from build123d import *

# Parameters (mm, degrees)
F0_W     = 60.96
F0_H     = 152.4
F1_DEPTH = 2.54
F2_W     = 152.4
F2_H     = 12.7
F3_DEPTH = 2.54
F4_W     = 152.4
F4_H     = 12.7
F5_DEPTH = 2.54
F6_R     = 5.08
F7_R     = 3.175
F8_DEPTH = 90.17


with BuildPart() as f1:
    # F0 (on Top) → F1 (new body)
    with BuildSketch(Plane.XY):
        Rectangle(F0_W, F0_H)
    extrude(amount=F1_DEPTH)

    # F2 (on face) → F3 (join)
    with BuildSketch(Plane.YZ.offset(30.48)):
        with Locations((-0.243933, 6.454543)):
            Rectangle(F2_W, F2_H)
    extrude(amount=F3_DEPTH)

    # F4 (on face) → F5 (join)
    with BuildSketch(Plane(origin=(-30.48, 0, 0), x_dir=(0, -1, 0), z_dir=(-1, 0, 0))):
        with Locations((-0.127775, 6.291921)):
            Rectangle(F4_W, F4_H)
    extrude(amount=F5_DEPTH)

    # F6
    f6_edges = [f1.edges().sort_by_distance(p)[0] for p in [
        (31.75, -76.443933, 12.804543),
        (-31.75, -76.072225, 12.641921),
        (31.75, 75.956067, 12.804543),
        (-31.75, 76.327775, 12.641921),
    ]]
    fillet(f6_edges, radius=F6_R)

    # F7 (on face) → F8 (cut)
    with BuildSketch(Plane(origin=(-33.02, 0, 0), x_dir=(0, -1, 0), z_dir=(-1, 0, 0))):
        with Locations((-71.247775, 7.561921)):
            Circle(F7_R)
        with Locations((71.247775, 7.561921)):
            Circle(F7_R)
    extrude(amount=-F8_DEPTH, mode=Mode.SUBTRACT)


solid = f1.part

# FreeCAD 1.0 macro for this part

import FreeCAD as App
import Part
import Sketcher
Q = App.Units.Quantity


def edges_at(feature, points):
    """Names of the edges that pass closest to the given points."""
    edges = feature.Shape.Edges
    near = lambda p: min(range(len(edges)), key=lambda i: edges[i].distToShape(Part.Vertex(*p))[0])
    return sorted({f"Edge{near(p) + 1}" for p in points})

doc = App.newDocument("Part")
body = doc.addObject("PartDesign::Body", "Body")

# Sketch on XY plane
sketch1 = doc.addObject("Sketcher::SketchObject", "Sketch")
body.addObject(sketch1)
sketch1.AttachmentSupport = (doc.XY_Plane, [""])
sketch1.MapMode = "FlatFace"
sketch1.addGeometry([
    Part.LineSegment(App.Vector(-30, 76, 0), App.Vector(-30, -76, 0)),
    Part.LineSegment(App.Vector(-30, -76, 0), App.Vector(30, -76, 0)),
    Part.LineSegment(App.Vector(30, -76, 0), App.Vector(30, 76, 0)),
    Part.LineSegment(App.Vector(30, 76, 0), App.Vector(-30, 76, 0)),
], False)
sketch1.addConstraint([
    Sketcher.Constraint("Coincident", 0, 2, 1, 1),
    Sketcher.Constraint("Coincident", 1, 2, 2, 1),
    Sketcher.Constraint("Coincident", 2, 2, 3, 1),
    Sketcher.Constraint("Coincident", 3, 2, 0, 1),
    Sketcher.Constraint("Vertical", 0),
    Sketcher.Constraint("Horizontal", 1),
    Sketcher.Constraint("Vertical", 2),
    Sketcher.Constraint("Horizontal", 3),
    Sketcher.Constraint("Symmetric", 0, 2, 2, 2, -1, 1),
    Sketcher.Constraint("DistanceY", 0, 2, 0, 1, Q("6 in")),
    Sketcher.Constraint("DistanceX", 1, 1, 1, 2, Q("2.4 in")),
])
pad1 = doc.addObject("PartDesign::Pad", "Pad")
body.addObject(pad1)
pad1.Profile = sketch1
pad1.Length = Q("0.1 in")

# Sketch on YZ plane
sketch2 = doc.addObject("Sketcher::SketchObject", "Sketch001")
body.addObject(sketch2)
sketch2.AttachmentSupport = (doc.YZ_Plane, [""])
sketch2.MapMode = "FlatFace"
sketch2.AttachmentOffset = App.Placement(App.Vector(0, 0, 1.2 * 25.4), App.Rotation())
sketch2.addGeometry([
    Part.LineSegment(App.Vector(-76, 13, 0), App.Vector(-76, 0, 0)),
    Part.LineSegment(App.Vector(-76, 0, 0), App.Vector(76, 0, 0)),
    Part.LineSegment(App.Vector(76, 0, 0), App.Vector(76, 13, 0)),
    Part.LineSegment(App.Vector(76, 13, 0), App.Vector(-76, 13, 0)),
], False)
sketch2.addConstraint([
    Sketcher.Constraint("Coincident", 0, 2, 1, 1),
    Sketcher.Constraint("Coincident", 1, 2, 2, 1),
    Sketcher.Constraint("Coincident", 2, 2, 3, 1),
    Sketcher.Constraint("Coincident", 3, 2, 0, 1),
    Sketcher.Constraint("Vertical", 0),
    Sketcher.Constraint("Horizontal", 1),
    Sketcher.Constraint("Vertical", 2),
    Sketcher.Constraint("Horizontal", 3),
    Sketcher.Constraint("DistanceX", 1, 1, 1, 2, Q("6 in")),
    Sketcher.Constraint("DistanceY", 0, 2, 0, 1, Q("0.5 in")),
    Sketcher.Constraint("DistanceX", 0, 2, -1, 1, 76.443933),
    Sketcher.Constraint("DistanceY", -1, 1, 0, 2, 0.104543),
])
pad2 = doc.addObject("PartDesign::Pad", "Pad001")
body.addObject(pad2)
pad2.Profile = sketch2
pad2.Length = Q("0.1 in")

# Sketch on YZ plane
sketch3 = doc.addObject("Sketcher::SketchObject", "Sketch002")
body.addObject(sketch3)
sketch3.AttachmentSupport = (doc.YZ_Plane, [""])
sketch3.MapMode = "FlatFace"
sketch3.AttachmentOffset = App.Placement(App.Vector(0, 0, -1.2 * 25.4), App.Rotation())
sketch3.addGeometry([
    Part.LineSegment(App.Vector(76, 13, 0), App.Vector(76, 0, 0)),
    Part.LineSegment(App.Vector(76, 0, 0), App.Vector(-76, 0, 0)),
    Part.LineSegment(App.Vector(-76, 0, 0), App.Vector(-76, 13, 0)),
    Part.LineSegment(App.Vector(-76, 13, 0), App.Vector(76, 13, 0)),
], False)
sketch3.addConstraint([
    Sketcher.Constraint("Coincident", 0, 2, 1, 1),
    Sketcher.Constraint("Coincident", 1, 2, 2, 1),
    Sketcher.Constraint("Coincident", 2, 2, 3, 1),
    Sketcher.Constraint("Coincident", 3, 2, 0, 1),
    Sketcher.Constraint("Vertical", 0),
    Sketcher.Constraint("Horizontal", 1),
    Sketcher.Constraint("Vertical", 2),
    Sketcher.Constraint("Horizontal", 3),
    Sketcher.Constraint("DistanceX", 1, 2, 1, 1, Q("6 in")),
    Sketcher.Constraint("DistanceY", 0, 2, 0, 1, Q("0.5 in")),
    Sketcher.Constraint("DistanceY", 0, 2, -1, 1, 0.058079),
    Sketcher.Constraint("DistanceX", -1, 1, 0, 2, 76.327775),
])
pad3 = doc.addObject("PartDesign::Pad", "Pad002")
body.addObject(pad3)
pad3.Profile = sketch3
pad3.Length = Q("0.1 in")
pad3.Reversed = True
doc.recompute()

fillet = doc.addObject("PartDesign::Fillet", "Fillet")
body.addObject(fillet)
fillet.Base = (pad3, edges_at(pad3, [
    (31.75, -76.444, 12.805),
    (-31.75, -76.072, 12.642),
    (31.75, 75.956, 12.805),
    (-31.75, 76.328, 12.642),
]))
fillet.Radius = Q("0.2 in")

# Sketch on YZ plane
sketch4 = doc.addObject("Sketcher::SketchObject", "Sketch003")
body.addObject(sketch4)
sketch4.AttachmentSupport = (doc.YZ_Plane, [""])
sketch4.MapMode = "FlatFace"
sketch4.AttachmentOffset = App.Placement(App.Vector(0, 0, -1.3 * 25.4), App.Rotation())
sketch4.addGeometry([
    Part.Circle(App.Vector(71.2, 7.6, 0), App.Vector(0, 0, 1), 3.2),
    Part.Circle(App.Vector(-71.2, 7.6, 0), App.Vector(0, 0, 1), 3.2),
], False)
sketch4.addConstraint([
    Sketcher.Constraint("Equal", 0, 1),
    Sketcher.Constraint("Symmetric", 0, 3, 1, 3, -2),
    Sketcher.Constraint("Diameter", 0, Q("0.25 in")),
    Sketcher.Constraint("DistanceY", -1, 1, 0, 3, 7.561921),
    Sketcher.Constraint("DistanceX", 1, 3, 0, 3, 142.49555),
])
pocket1 = doc.addObject("PartDesign::Pocket", "Pocket")
body.addObject(pocket1)
pocket1.Profile = sketch4
pocket1.Length = Q("3.55 in")
pocket1.Reversed = True

doc.recompute()
